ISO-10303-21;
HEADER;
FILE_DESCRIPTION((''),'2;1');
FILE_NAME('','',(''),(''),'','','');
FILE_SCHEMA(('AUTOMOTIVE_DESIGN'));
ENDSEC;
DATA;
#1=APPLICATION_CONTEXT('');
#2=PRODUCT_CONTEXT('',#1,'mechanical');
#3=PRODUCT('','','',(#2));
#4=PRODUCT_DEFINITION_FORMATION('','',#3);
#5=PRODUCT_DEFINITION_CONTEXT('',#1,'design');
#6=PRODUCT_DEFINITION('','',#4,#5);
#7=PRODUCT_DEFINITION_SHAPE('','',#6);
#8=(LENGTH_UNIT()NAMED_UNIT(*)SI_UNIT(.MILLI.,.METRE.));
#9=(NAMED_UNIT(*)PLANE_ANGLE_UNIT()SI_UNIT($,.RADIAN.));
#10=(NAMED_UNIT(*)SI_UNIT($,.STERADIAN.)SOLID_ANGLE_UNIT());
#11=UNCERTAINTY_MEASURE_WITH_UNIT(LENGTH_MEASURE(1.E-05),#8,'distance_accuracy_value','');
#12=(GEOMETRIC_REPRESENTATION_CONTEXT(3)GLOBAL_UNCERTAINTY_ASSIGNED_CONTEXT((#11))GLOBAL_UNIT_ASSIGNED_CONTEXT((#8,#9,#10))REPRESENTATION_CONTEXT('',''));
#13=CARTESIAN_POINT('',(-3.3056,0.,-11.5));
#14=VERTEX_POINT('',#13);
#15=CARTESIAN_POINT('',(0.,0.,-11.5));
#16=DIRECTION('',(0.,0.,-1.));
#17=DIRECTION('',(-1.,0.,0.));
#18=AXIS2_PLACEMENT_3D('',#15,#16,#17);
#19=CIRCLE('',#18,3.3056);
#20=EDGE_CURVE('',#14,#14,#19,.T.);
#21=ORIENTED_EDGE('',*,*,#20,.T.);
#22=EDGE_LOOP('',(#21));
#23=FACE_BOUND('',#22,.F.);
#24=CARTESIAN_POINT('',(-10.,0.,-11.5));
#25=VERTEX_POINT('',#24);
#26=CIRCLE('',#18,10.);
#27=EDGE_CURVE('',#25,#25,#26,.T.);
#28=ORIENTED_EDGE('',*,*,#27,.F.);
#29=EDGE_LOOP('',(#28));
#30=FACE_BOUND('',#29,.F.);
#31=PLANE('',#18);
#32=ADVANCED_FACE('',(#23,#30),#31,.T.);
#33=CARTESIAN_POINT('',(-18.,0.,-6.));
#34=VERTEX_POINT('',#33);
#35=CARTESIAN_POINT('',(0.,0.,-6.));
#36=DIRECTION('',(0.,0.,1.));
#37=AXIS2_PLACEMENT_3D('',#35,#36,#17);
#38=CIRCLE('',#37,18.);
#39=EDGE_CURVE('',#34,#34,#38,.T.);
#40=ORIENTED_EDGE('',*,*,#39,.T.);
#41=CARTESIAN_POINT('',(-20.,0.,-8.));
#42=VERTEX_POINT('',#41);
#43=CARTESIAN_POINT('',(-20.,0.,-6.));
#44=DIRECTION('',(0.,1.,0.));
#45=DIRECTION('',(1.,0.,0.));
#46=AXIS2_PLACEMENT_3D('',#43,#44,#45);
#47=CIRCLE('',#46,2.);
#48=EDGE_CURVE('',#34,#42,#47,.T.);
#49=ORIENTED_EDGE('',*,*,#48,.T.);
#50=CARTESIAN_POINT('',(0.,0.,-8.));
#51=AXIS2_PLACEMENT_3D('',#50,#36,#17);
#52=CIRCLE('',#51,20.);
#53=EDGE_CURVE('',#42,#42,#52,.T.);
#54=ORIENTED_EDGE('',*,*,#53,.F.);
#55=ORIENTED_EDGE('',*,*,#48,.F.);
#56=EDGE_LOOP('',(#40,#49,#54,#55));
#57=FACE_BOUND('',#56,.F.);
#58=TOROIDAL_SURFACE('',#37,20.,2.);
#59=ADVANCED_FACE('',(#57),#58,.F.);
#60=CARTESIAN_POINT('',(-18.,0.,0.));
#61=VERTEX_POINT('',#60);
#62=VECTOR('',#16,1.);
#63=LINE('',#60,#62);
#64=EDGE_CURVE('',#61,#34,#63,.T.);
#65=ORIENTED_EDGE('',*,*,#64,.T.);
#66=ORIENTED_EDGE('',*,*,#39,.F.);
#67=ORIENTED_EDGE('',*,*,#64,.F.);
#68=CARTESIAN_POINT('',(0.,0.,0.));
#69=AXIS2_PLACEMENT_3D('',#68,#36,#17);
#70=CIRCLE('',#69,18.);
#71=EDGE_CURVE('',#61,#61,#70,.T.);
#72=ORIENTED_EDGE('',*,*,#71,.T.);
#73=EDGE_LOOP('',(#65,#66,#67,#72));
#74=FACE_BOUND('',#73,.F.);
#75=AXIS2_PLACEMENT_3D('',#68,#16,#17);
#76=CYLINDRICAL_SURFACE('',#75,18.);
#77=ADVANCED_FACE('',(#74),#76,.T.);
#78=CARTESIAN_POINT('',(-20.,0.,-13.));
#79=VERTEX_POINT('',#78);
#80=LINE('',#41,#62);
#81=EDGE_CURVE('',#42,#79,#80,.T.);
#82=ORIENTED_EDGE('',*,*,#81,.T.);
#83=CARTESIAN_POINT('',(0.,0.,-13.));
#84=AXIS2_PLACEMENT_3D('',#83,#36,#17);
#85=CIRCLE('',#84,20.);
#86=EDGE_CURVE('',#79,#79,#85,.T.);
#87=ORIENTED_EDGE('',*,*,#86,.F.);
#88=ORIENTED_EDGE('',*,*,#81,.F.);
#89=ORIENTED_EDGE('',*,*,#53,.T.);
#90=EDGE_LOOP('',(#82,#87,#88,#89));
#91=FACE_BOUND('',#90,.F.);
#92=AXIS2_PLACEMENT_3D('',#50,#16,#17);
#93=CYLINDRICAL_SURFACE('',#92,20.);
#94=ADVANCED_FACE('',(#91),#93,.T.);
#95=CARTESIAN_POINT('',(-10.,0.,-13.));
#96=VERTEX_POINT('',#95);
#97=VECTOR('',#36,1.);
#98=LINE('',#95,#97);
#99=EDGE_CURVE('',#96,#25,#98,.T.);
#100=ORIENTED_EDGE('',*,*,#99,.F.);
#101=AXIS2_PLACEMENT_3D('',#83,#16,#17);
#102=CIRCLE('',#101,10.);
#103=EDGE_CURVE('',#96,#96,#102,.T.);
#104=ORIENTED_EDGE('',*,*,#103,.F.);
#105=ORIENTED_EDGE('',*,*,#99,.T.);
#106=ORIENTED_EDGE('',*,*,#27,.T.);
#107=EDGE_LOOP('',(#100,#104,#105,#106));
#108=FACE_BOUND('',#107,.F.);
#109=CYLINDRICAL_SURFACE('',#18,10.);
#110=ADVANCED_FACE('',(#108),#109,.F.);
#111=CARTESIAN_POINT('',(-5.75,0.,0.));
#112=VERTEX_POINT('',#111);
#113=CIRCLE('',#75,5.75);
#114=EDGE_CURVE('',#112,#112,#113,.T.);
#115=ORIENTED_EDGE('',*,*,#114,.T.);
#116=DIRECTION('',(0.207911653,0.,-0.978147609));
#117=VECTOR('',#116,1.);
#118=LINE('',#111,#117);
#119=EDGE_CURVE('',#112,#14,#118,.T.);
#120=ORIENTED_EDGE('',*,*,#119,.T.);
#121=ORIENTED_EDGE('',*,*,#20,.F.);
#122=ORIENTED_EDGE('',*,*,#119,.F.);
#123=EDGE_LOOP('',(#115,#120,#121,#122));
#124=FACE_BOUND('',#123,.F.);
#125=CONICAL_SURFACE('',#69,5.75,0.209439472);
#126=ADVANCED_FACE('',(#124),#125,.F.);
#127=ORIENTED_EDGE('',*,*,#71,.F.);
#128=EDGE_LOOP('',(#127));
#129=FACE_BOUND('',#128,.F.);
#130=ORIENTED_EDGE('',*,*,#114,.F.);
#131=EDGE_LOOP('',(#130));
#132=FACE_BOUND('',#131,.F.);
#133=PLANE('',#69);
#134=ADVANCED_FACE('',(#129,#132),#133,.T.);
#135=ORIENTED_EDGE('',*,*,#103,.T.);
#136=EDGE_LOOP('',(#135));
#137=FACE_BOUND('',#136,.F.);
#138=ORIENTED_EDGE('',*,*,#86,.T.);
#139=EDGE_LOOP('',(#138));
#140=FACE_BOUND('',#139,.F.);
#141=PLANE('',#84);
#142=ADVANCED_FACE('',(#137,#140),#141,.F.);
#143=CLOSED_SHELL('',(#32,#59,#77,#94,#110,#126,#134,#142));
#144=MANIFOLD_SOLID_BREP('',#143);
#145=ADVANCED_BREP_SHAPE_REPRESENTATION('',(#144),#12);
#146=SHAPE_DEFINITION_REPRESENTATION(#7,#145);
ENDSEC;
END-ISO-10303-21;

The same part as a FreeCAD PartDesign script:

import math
import FreeCAD as App
import Part
import Sketcher

V = App.Vector
Q = App.Units.Quantity


def add_polygon(sketch, points):
    """Adds a closed chain of lines whose ends are joined by coincident constraints."""
    first, n = sketch.GeometryCount, len(points)
    for a, b in zip(points, points[1:] + points[:1]):
        sketch.addGeometry(Part.LineSegment(App.Vector(*a, 0), App.Vector(*b, 0)), False)
    for i in range(n):
        sketch.addConstraint(Sketcher.Constraint("Coincident", first + i, 2, first + (i + 1) % n, 1))

doc = App.newDocument("Part")
params = doc.addObject("Spreadsheet::Sheet", "Params")
for row, (alias, value) in enumerate([
    ("sketch1_height", "13 mm"),
    ("sketch1_height2", "5 mm"),
    ("sketch1_radius", "2 mm"),
    ("sketch1_width", "18 mm"),
    ("revolution_angle", "360 deg"),
    ("sketch2_height", "1.5 mm"),
    ("sketch2_width", "10 mm"),
    ("sketch2_width2", "5.75 mm"),
    ("groove_angle", "360 deg"),
], start=1):
    params.set(f"A{row}", alias)
    params.set(f"B{row}", "=" + value)
    params.setAlias(f"B{row}", alias)

body = doc.addObject("PartDesign::Body", "Body")

# Sketch on XZ plane
sketch1 = body.newObject("Sketcher::SketchObject", "Sketch")
sketch1.AttachmentSupport = (doc.getObject("XZ_Plane"), [""])
sketch1.MapMode = "FlatFace"
sketch1.addGeometry([
    Part.LineSegment(V(-18, 0, 0), V(0, 0, 0)),  # 0
    Part.LineSegment(V(0, 0, 0), V(0, -13, 0)),  # 1
    Part.LineSegment(V(0, -13, 0), V(-20, -13, 0)),  # 2
    Part.LineSegment(V(-20, -13, 0), V(-20, -8, 0)),  # 3
    Part.ArcOfCircle(Part.Circle(V(-20, -6, 0), V(0, 0, 1), 2), math.radians(-90), math.radians(0)),  # 4
    Part.LineSegment(V(-18, -6, 0), V(-18, 0, 0)),  # 5
], False)
sketch1.addConstraint([
    Sketcher.Constraint("Coincident", 0, 2, 1, 1),
    Sketcher.Constraint("Coincident", 1, 2, 2, 1),
    Sketcher.Constraint("Coincident", 2, 2, 3, 1),
    Sketcher.Constraint("Coincident", 3, 2, 4, 1),
    Sketcher.Constraint("Tangent", 4, 2, 5, 1),
    Sketcher.Constraint("Coincident", 5, 2, 0, 1),
    Sketcher.Constraint("Horizontal", 0),
    Sketcher.Constraint("Vertical", 1),
    Sketcher.Constraint("Horizontal", 2),
    Sketcher.Constraint("Vertical", 3),
    Sketcher.Constraint("Vertical", 5),
    Sketcher.Constraint("Coincident", 0, 2, -1, 1),
    Sketcher.Constraint("Vertical", 4, 3, 2, 2),
    Sketcher.Constraint("DistanceY", 1, 2, 1, 1, Q("13 mm")),
    Sketcher.Constraint("DistanceY", 3, 1, 3, 2, Q("5 mm")),
    Sketcher.Constraint("Radius", 4, Q("2 mm")),
    Sketcher.Constraint("DistanceX", 0, 1, 0, 2, Q("18 mm")),
])
sketch1.setExpression("Constraints[13]", "Params.sketch1_height")
sketch1.setExpression("Constraints[14]", "Params.sketch1_height2")
sketch1.setExpression("Constraints[15]", "Params.sketch1_radius")
sketch1.setExpression("Constraints[16]", "Params.sketch1_width")
revolution = body.newObject("PartDesign::Revolution", "Revolution")
revolution.Profile = sketch1
revolution.ReferenceAxis = (sketch1, ["V_Axis"])
revolution.setExpression("Angle", "Params.revolution_angle")

# Sketch on XZ plane
sketch2 = body.newObject("Sketcher::SketchObject", "Sketch001")
sketch2.AttachmentSupport = (doc.getObject("XZ_Plane"), [""])
sketch2.MapMode = "FlatFace"
add_polygon(sketch2, [(-3.3, -11.5), (-5.8, 0), (0, 0), (0, -13), (-10, -13), (-10, -11.5)])  # lines 0-5
sketch2.addConstraint([
    Sketcher.Constraint("Horizontal", 1),
    Sketcher.Constraint("Vertical", 2),
    Sketcher.Constraint("Horizontal", 3),
    Sketcher.Constraint("Vertical", 4),
    Sketcher.Constraint("Horizontal", 5),
    Sketcher.Constraint("Coincident", 1, 2, -1, 1),
    Sketcher.Constraint("DistanceY", 4, 1, 4, 2, Q("1.5 mm")),
    Sketcher.Constraint("DistanceY", 4, 2, -1, 1, Q("11.5 mm")),
    Sketcher.Constraint("DistanceX", 3, 2, 3, 1, Q("10 mm")),
    Sketcher.Constraint("Angle", 0, Q("102 deg")),
    Sketcher.Constraint("DistanceX", 1, 1, 1, 2, Q("5.75 mm")),
])
sketch2.setExpression("Constraints[12]", "Params.sketch2_height")
sketch2.setExpression("Constraints[14]", "Params.sketch2_width")
sketch2.setExpression("Constraints[16]", "Params.sketch2_width2")
groove = body.newObject("PartDesign::Groove", "Groove")
groove.Profile = sketch2
groove.ReferenceAxis = (sketch2, ["V_Axis"])
groove.setExpression("Angle", "Params.groove_angle")

doc.recompute()
